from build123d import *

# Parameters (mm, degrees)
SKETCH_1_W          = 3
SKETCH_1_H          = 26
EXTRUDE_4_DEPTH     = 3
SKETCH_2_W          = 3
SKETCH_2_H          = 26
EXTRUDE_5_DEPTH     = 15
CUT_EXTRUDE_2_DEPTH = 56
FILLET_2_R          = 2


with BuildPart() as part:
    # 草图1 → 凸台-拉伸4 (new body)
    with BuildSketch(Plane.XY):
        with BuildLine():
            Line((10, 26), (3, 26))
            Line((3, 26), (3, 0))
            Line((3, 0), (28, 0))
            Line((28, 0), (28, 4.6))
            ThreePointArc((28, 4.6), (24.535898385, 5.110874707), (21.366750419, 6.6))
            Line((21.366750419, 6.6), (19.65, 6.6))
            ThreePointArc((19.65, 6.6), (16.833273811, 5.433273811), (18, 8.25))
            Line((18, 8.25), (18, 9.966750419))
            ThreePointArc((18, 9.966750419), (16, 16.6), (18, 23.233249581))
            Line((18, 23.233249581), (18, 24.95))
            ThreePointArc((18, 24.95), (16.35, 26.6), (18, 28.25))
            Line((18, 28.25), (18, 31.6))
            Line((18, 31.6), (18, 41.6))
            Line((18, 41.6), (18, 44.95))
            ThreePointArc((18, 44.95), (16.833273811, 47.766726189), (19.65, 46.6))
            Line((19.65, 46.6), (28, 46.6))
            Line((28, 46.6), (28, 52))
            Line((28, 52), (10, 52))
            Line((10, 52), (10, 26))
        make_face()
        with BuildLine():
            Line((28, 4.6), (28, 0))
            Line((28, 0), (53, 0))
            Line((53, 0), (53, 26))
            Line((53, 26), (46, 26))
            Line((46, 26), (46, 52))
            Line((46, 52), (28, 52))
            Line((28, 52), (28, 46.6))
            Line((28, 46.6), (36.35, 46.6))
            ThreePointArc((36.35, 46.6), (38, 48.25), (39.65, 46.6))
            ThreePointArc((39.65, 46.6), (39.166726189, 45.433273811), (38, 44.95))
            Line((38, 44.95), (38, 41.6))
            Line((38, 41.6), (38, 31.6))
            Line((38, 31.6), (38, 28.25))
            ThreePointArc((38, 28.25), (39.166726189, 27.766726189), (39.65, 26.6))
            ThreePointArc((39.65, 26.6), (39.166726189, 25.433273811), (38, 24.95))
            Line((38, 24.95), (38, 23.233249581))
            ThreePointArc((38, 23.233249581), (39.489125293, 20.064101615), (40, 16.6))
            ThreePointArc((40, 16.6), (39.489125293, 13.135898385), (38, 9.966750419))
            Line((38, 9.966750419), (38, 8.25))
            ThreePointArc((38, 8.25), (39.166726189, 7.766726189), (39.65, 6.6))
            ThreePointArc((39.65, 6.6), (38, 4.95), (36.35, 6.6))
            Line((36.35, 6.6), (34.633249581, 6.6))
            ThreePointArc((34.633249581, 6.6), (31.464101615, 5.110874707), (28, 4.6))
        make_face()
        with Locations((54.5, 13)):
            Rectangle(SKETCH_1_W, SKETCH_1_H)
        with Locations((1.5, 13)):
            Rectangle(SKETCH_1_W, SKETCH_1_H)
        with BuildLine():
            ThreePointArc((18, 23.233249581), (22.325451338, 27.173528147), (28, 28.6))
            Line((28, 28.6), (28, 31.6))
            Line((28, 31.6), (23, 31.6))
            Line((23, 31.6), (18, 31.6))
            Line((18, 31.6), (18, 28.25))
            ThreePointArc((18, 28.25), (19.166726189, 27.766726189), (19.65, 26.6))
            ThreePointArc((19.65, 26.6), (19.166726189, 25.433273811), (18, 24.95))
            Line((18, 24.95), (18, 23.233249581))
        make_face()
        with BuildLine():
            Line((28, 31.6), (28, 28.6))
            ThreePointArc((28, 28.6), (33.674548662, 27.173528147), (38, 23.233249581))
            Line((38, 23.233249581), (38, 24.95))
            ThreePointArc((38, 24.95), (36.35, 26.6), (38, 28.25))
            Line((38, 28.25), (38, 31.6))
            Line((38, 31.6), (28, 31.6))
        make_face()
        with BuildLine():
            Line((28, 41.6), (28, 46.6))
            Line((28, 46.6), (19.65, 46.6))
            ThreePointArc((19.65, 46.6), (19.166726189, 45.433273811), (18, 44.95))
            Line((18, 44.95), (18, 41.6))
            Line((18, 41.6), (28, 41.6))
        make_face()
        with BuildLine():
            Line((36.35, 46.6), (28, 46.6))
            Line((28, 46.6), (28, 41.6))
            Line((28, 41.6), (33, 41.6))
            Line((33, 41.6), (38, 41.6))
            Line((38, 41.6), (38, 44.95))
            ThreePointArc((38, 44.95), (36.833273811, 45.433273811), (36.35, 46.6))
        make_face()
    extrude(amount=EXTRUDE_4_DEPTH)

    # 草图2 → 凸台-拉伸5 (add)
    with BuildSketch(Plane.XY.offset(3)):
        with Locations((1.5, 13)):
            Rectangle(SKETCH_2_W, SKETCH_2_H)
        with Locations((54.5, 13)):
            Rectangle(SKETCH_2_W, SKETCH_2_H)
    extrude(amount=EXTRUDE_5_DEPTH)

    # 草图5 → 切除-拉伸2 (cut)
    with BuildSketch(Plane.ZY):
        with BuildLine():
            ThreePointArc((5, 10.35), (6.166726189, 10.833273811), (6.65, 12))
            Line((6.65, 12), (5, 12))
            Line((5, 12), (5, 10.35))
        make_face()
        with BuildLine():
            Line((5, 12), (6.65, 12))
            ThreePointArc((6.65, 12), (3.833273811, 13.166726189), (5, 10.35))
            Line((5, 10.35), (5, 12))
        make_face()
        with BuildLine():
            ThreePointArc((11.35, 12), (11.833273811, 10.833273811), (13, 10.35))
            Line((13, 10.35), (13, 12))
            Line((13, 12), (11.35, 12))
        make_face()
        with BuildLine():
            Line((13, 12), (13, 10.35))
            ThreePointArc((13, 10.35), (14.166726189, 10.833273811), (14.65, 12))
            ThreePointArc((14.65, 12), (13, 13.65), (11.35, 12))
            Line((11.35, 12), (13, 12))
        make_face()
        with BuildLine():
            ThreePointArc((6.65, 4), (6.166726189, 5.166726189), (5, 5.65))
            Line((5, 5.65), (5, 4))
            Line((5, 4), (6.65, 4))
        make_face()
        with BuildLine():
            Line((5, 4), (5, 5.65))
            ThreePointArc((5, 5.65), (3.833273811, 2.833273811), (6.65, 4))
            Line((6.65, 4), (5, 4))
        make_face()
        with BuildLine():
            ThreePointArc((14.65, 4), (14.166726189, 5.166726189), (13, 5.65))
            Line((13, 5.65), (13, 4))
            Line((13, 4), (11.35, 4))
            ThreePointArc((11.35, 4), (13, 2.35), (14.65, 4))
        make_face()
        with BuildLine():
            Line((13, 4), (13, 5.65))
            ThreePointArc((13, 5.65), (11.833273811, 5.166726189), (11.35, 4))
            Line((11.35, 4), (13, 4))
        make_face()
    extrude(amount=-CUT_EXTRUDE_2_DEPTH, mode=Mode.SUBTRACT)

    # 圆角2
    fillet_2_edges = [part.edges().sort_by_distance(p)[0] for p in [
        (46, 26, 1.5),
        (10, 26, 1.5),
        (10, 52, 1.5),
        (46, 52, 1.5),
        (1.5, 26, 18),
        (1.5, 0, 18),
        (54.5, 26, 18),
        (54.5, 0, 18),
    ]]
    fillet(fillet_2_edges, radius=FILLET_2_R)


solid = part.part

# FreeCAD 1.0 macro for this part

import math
import FreeCAD as App
import Part
import Sketcher


def edges_at(feature, points):
    """Names of the edges that pass closest to the given points."""
    edges = feature.Shape.Edges
    near = lambda p: min(range(len(edges)), key=lambda i: edges[i].distToShape(Part.Vertex(*p))[0])
    return sorted({f"Edge{near(p) + 1}" for p in points})


def add_polygon(sketch, points):
    """Adds a closed chain of lines whose ends are joined by coincident constraints."""
    first, n = sketch.GeometryCount, len(points)
    for a, b in zip(points, points[1:] + points[:1]):
        sketch.addGeometry(Part.LineSegment(App.Vector(*a, 0), App.Vector(*b, 0)), False)
    for i in range(n):
        sketch.addConstraint(Sketcher.Constraint("Coincident", first + i, 2, first + (i + 1) % n, 1))

doc = App.newDocument("Part")
body = doc.addObject("PartDesign::Body", "Body")

sketch1 = body.newObject("Sketcher::SketchObject", "Sketch")
sketch1.AttachmentSupport = (doc.getObject("XY_Plane"), [""])
sketch1.MapMode = "FlatFace"
add_polygon(sketch1, [(10, 26), (0, 26), (0, 0), (56, 0), (56, 26), (46, 26), (46, 52), (10, 52)])
sketch1.addGeometry(Part.ArcOfCircle(Part.Circle(App.Vector(28, 16.6, 0), App.Vector(0, 0, 1), 12), math.radians(-124), math.radians(-90)), False)
sketch1.addGeometry(Part.LineSegment(App.Vector(21.4, 6.6, 0), App.Vector(19.6, 6.6, 0)), False)
sketch1.addGeometry(Part.ArcOfCircle(Part.Circle(App.Vector(18, 6.6, 0), App.Vector(0, 0, 1), 1.6), math.radians(90), math.radians(360)), False)
sketch1.addGeometry(Part.LineSegment(App.Vector(18, 8.2, 0), App.Vector(18, 10, 0)), False)
sketch1.addGeometry(Part.ArcOfCircle(Part.Circle(App.Vector(28, 16.6, 0), App.Vector(0, 0, 1), 12), math.radians(146), math.radians(214)), False)
sketch1.addGeometry(Part.ArcOfCircle(Part.Circle(App.Vector(28, 16.6, 0), App.Vector(0, 0, 1), 12), math.radians(90), math.radians(146)), False)
sketch1.addGeometry(Part.ArcOfCircle(Part.Circle(App.Vector(28, 16.6, 0), App.Vector(0, 0, 1), 12), math.radians(34), math.radians(90)), False)
sketch1.addGeometry(Part.ArcOfCircle(Part.Circle(App.Vector(28, 16.6, 0), App.Vector(0, 0, 1), 12), math.radians(0), math.radians(34)), False)
sketch1.addGeometry(Part.ArcOfCircle(Part.Circle(App.Vector(28, 16.6, 0), App.Vector(0, 0, 1), 12), math.radians(-34), math.radians(0)), False)
sketch1.addGeometry(Part.LineSegment(App.Vector(38, 10, 0), App.Vector(38, 8.2, 0)), False)
sketch1.addGeometry(Part.ArcOfCircle(Part.Circle(App.Vector(38, 6.6, 0), App.Vector(0, 0, 1), 1.6), math.radians(0), math.radians(90)), False)
sketch1.addGeometry(Part.ArcOfCircle(Part.Circle(App.Vector(38, 6.6, 0), App.Vector(0, 0, 1), 1.6), math.radians(180), math.radians(360)), False)
sketch1.addGeometry(Part.LineSegment(App.Vector(36.4, 6.6, 0), App.Vector(34.6, 6.6, 0)), False)
sketch1.addGeometry(Part.ArcOfCircle(Part.Circle(App.Vector(28, 16.6, 0), App.Vector(0, 0, 1), 12), math.radians(-90), math.radians(-56)), False)
add_polygon(sketch1, [(18, 31.6), (18, 41.6), (38, 41.6), (38, 31.6)])
sketch1.addGeometry(Part.ArcOfCircle(Part.Circle(App.Vector(38, 46.6, 0), App.Vector(0, 0, 1), 1.6), math.radians(0), math.radians(180)), False)
sketch1.addGeometry(Part.ArcOfCircle(Part.Circle(App.Vector(38, 46.6, 0), App.Vector(0, 0, 1), 1.6), math.radians(-90), math.radians(0)), False)
sketch1.addGeometry(Part.ArcOfCircle(Part.Circle(App.Vector(38, 46.6, 0), App.Vector(0, 0, 1), 1.6), math.radians(180), math.radians(270)), False)
sketch1.addGeometry(Part.ArcOfCircle(Part.Circle(App.Vector(18, 46.6, 0), App.Vector(0, 0, 1), 1.6), math.radians(0), math.radians(270)), False)
sketch1.addGeometry(Part.ArcOfCircle(Part.Circle(App.Vector(18, 46.6, 0), App.Vector(0, 0, 1), 1.6), math.radians(-90), math.radians(0)), False)
sketch1.addGeometry(Part.ArcOfCircle(Part.Circle(App.Vector(38, 26.6, 0), App.Vector(0, 0, 1), 1.6), math.radians(0), math.radians(90)), False)
sketch1.addGeometry(Part.ArcOfCircle(Part.Circle(App.Vector(38, 26.6, 0), App.Vector(0, 0, 1), 1.6), math.radians(-90), math.radians(0)), False)
sketch1.addGeometry(Part.ArcOfCircle(Part.Circle(App.Vector(38, 26.6, 0), App.Vector(0, 0, 1), 1.6), math.radians(90), math.radians(270)), False)
sketch1.addGeometry(Part.ArcOfCircle(Part.Circle(App.Vector(18, 26.6, 0), App.Vector(0, 0, 1), 1.6), math.radians(90), math.radians(270)), False)
sketch1.addGeometry(Part.ArcOfCircle(Part.Circle(App.Vector(18, 26.6, 0), App.Vector(0, 0, 1), 1.6), math.radians(0), math.radians(90)), False)
sketch1.addGeometry(Part.ArcOfCircle(Part.Circle(App.Vector(18, 26.6, 0), App.Vector(0, 0, 1), 1.6), math.radians(-90), math.radians(0)), False)
sketch1.addConstraint([
    Sketcher.Constraint("Coincident", 8, 1, 9, 1),
    Sketcher.Constraint("Coincident", 9, 2, 10, 2),
    Sketcher.Constraint("Coincident", 10, 1, 11, 1),
    Sketcher.Constraint("Coincident", 11, 2, 12, 2),
    Sketcher.Constraint("Tangent", 12, 1, 13, 2),
    Sketcher.Constraint("Tangent", 13, 1, 14, 2),
    Sketcher.Constraint("Tangent", 14, 1, 15, 2),
    Sketcher.Constraint("Tangent", 15, 1, 16, 2),
    Sketcher.Constraint("Coincident", 16, 1, 17, 1),
    Sketcher.Constraint("Coincident", 17, 2, 18, 2),
    Sketcher.Constraint("Tangent", 18, 1, 19, 2),
    Sketcher.Constraint("Coincident", 19, 1, 20, 1),
    Sketcher.Constraint("Coincident", 20, 2, 21, 2),
    Sketcher.Constraint("Tangent", 21, 1, 8, 2),
    Sketcher.Constraint("Tangent", 26, 1, 27, 2),
    Sketcher.Constraint("Tangent", 27, 1, 28, 2),
    Sketcher.Constraint("Tangent", 28, 1, 26, 2),
    Sketcher.Constraint("Tangent", 29, 1, 30, 2),
    Sketcher.Constraint("Coincident", 30, 1, 29, 2),
    Sketcher.Constraint("Tangent", 31, 1, 32, 2),
    Sketcher.Constraint("Tangent", 32, 1, 33, 2),
    Sketcher.Constraint("Tangent", 33, 1, 31, 2),
    Sketcher.Constraint("Tangent", 34, 1, 35, 2),
    Sketcher.Constraint("Tangent", 35, 1, 36, 2),
    Sketcher.Constraint("Tangent", 36, 1, 34, 2),
    Sketcher.Constraint("Horizontal", 0),
    Sketcher.Constraint("Vertical", 1),
    Sketcher.Constraint("Horizontal", 2),
    Sketcher.Constraint("Vertical", 3),
    Sketcher.Constraint("Horizontal", 4),
    Sketcher.Constraint("Vertical", 5),
    Sketcher.Constraint("Horizontal", 6),
    Sketcher.Constraint("Vertical", 7),
    Sketcher.Constraint("Horizontal", 9),
    Sketcher.Constraint("Vertical", 11),
    Sketcher.Constraint("Vertical", 17),
    Sketcher.Constraint("Horizontal", 20),
    Sketcher.Constraint("Vertical", 22),
    Sketcher.Constraint("Horizontal", 23),
    Sketcher.Constraint("Vertical", 24),
    Sketcher.Constraint("Horizontal", 25),
    Sketcher.Constraint("Coincident", 1, 2, -1, 1),
    Sketcher.Constraint("Coincident", 12, 3, 8, 3),
    Sketcher.Constraint("Coincident", 14, 3, 8, 3),
    Sketcher.Constraint("Coincident", 16, 3, 8, 3),
    Sketcher.Constraint("Equal", 8, 12),
    Sketcher.Constraint("Equal", 10, 18),
    Sketcher.Constraint("Equal", 18, 19),
    Sketcher.Constraint("Equal", 16, 21),
    Sketcher.Constraint("Equal", 19, 26),
    Sketcher.Constraint("Equal", 28, 29),
    Sketcher.Constraint("Equal", 30, 31),
    Sketcher.Constraint("Equal", 33, 34),
    Sketcher.Constraint("Horizontal", 10, 3, 18, 3),
    Sketcher.Constraint("Horizontal", 28, 3, 29, 3),
    Sketcher.Constraint("Horizontal", 33, 3, 34, 3),
    Sketcher.Constraint("Horizontal", 0, 2, 3, 2),
    Sketcher.Constraint("Horizontal", 19, 3, 8, 1),
    Sketcher.Constraint("Horizontal", 12, 1, 14, 1),
    Sketcher.Constraint("Horizontal", 21, 3, 15, 1),
    Sketcher.Constraint("Horizontal", 11, 2, 16, 1),
    Sketcher.Constraint("Horizontal", 9, 2, 18, 1),
    Sketcher.Constraint("Horizontal", 18, 1, 19, 1),
    Sketcher.Constraint("Horizontal", 30, 3, 26, 1),
    Sketcher.Constraint("Horizontal", 26, 1, 28, 1),
    Sketcher.Constraint("Horizontal", 28, 1, 29, 1),
    Sketcher.Constraint("Horizontal", 36, 3, 31, 1),
    Sketcher.Constraint("Horizontal", 31, 1, 35, 1),
    Sketcher.Constraint("Vertical", 19, 3, 26, 3),
    Sketcher.Constraint("Vertical", 10, 3, 29, 3),
    Sketcher.Constraint("Vertical", 28, 3, 31, 3),
    Sketcher.Constraint("Vertical", 30, 3, 34, 3),
    Sketcher.Constraint("Vertical", 36, 3, 10, 1),
    Sketcher.Constraint("Vertical", 11, 2, 12, 1),
    Sketcher.Constraint("Vertical", 21, 3, 13, 1),
    Sketcher.Constraint("Vertical", 33, 3, 14, 1),
    Sketcher.Constraint("Vertical", 13, 1, 21, 1),
    Sketcher.Constraint("Vertical", 12, 1, 22, 2),
    Sketcher.Constraint("Vertical", 17, 2, 23, 2),
    Sketcher.Constraint("Vertical", 24, 2, 27, 1),
    Sketcher.Constraint("Vertical", 25, 2, 30, 1),
    Sketcher.Constraint("Vertical", 27, 1, 32, 1),
    Sketcher.Constraint("Vertical", 32, 1, 33, 1),
    Sketcher.Constraint("Vertical", 30, 1, 34, 1),
    Sketcher.Constraint("Vertical", 34, 1, 36, 1),
    Sketcher.Constraint("Equal", 0, 4),
    Sketcher.Constraint("Equal", 3, 5),
    Sketcher.Constraint("Equal", 20, 11),
    Sketcher.Constraint("Equal", 4, 22),
    Sketcher.Constraint("Radius", 8, 12.0),
    Sketcher.Constraint("DistanceX", 0, 2, 0, 1, 10.0),
    Sketcher.Constraint("DistanceX", 2, 1, 2, 2, 56.0),
    Sketcher.Constraint("DistanceX", 23, 1, 23, 2, 20.0),
    Sketcher.Constraint("DistanceY", 1, 2, 1, 1, 26.0),
    Sketcher.Constraint("Radius", 10, 1.65),
    Sketcher.Constraint("DistanceX", -1, 1, 8, 3, 28.0),
    Sketcher.Constraint("DistanceY", 8, 3, 26, 3, 30.0),
    Sketcher.Constraint("DistanceY", 8, 3, 31, 3, 10.0),
    Sketcher.Constraint("DistanceY", 22, 2, 29, 3, 5.0),
    Sketcher.Constraint("DistanceY", -1, 1, 8, 3, 16.6),
])
pad1 = body.newObject("PartDesign::Pad", "Pad")
pad1.Profile = sketch1
pad1.Length = 3

sketch2 = body.newObject("Sketcher::SketchObject", "Sketch001")
sketch2.AttachmentSupport = (doc.getObject("XY_Plane"), [""])
sketch2.MapMode = "FlatFace"
sketch2.AttachmentOffset = App.Placement(App.Vector(0, 0, 3), App.Rotation())
add_polygon(sketch2, [(0, 26), (0, 0), (3, 0), (3, 26)])
add_polygon(sketch2, [(53, 26), (53, 0), (56, 0), (56, 26)])
sketch2.addConstraint([
    Sketcher.Constraint("Vertical", 0),
    Sketcher.Constraint("Horizontal", 1),
    Sketcher.Constraint("Vertical", 2),
    Sketcher.Constraint("Horizontal", 3),
    Sketcher.Constraint("Vertical", 4),
    Sketcher.Constraint("Horizontal", 5),
    Sketcher.Constraint("Vertical", 6),
    Sketcher.Constraint("Horizontal", 7),
    Sketcher.Constraint("Coincident", 0, 2, -1, 1),
    Sketcher.Constraint("PointOnObject", 4, 2, -1),
    Sketcher.Constraint("Horizontal", 3, 2, 6, 2),
    Sketcher.Constraint("Equal", 3, 5),
    Sketcher.Constraint("DistanceX", 1, 1, 1, 2, 3.0),
    Sketcher.Constraint("DistanceY", 0, 2, 0, 1, 26.0),
    Sketcher.Constraint("DistanceX", -1, 1, 4, 2, 53.0),
])
pad2 = body.newObject("PartDesign::Pad", "Pad001")
pad2.Profile = sketch2
pad2.Length = 15

sketch3 = body.newObject("Sketcher::SketchObject", "Sketch002")
sketch3.AttachmentSupport = (doc.getObject("YZ_Plane"), [""])
sketch3.MapMode = "FlatFace"
sketch3.addGeometry([
    Part.ArcOfCircle(Part.Circle(App.Vector(12, 5, 0), App.Vector(0, 0, 1), 1.6), math.radians(90), math.radians(180)),
    Part.ArcOfCircle(Part.Circle(App.Vector(12, 5, 0), App.Vector(0, 0, 1), 1.6), math.radians(180), math.radians(450)),
    Part.ArcOfCircle(Part.Circle(App.Vector(12, 13, 0), App.Vector(0, 0, 1), 1.6), math.radians(180), math.radians(270)),
    Part.ArcOfCircle(Part.Circle(App.Vector(12, 13, 0), App.Vector(0, 0, 1), 1.6), math.radians(90), math.radians(180)),
    Part.ArcOfCircle(Part.Circle(App.Vector(12, 13, 0), App.Vector(0, 0, 1), 1.6), math.radians(-90), math.radians(90)),
    Part.ArcOfCircle(Part.Circle(App.Vector(4, 5, 0), App.Vector(0, 0, 1), 1.6), math.radians(0), math.radians(90)),
    Part.ArcOfCircle(Part.Circle(App.Vector(4, 5, 0), App.Vector(0, 0, 1), 1.6), math.radians(90), math.radians(360)),
    Part.ArcOfCircle(Part.Circle(App.Vector(4, 13, 0), App.Vector(0, 0, 1), 1.6), math.radians(0), math.radians(90)),
    Part.ArcOfCircle(Part.Circle(App.Vector(4, 13, 0), App.Vector(0, 0, 1), 1.6), math.radians(-90), math.radians(0)),
    Part.ArcOfCircle(Part.Circle(App.Vector(4, 13, 0), App.Vector(0, 0, 1), 1.6), math.radians(90), math.radians(270)),
], False)
sketch3.addConstraint([
    Sketcher.Constraint("Tangent", 0, 1, 1, 2),
    Sketcher.Constraint("Coincident", 1, 1, 0, 2),
    Sketcher.Constraint("Tangent", 2, 1, 3, 2),
    Sketcher.Constraint("Tangent", 3, 1, 4, 2),
    Sketcher.Constraint("Tangent", 4, 1, 2, 2),
    Sketcher.Constraint("Tangent", 5, 1, 6, 2),
    Sketcher.Constraint("Coincident", 6, 1, 5, 2),
    Sketcher.Constraint("Tangent", 7, 1, 8, 2),
    Sketcher.Constraint("Tangent", 8, 1, 9, 2),
    Sketcher.Constraint("Tangent", 9, 1, 7, 2),
    Sketcher.Constraint("Equal", 1, 2),
    Sketcher.Constraint("Equal", 4, 5),
    Sketcher.Constraint("Equal", 6, 7),
    Sketcher.Constraint("Horizontal", 1, 3, 5, 3),
    Sketcher.Constraint("Horizontal", 4, 3, 7, 3),
    Sketcher.Constraint("Horizontal", 6, 3, 1, 1),
    Sketcher.Constraint("Horizontal", 9, 3, 2, 1),
    Sketcher.Constraint("Horizontal", 1, 1, 5, 1),
    Sketcher.Constraint("Horizontal", 2, 1, 7, 1),
    Sketcher.Constraint("Vertical", 1, 3, 2, 3),
    Sketcher.Constraint("Vertical", 6, 3, 7, 3),
    Sketcher.Constraint("Vertical", 4, 3, 0, 1),
    Sketcher.Constraint("Vertical", 0, 1, 3, 1),
    Sketcher.Constraint("Vertical", 3, 1, 4, 1),
    Sketcher.Constraint("Vertical", 9, 3, 6, 1),
    Sketcher.Constraint("Vertical", 6, 1, 8, 1),
    Sketcher.Constraint("Vertical", 8, 1, 9, 1),
    Sketcher.Constraint("Radius", 0, 1.65),
    Sketcher.Constraint("DistanceX", -1, 1, 0, 3, 12.0),
    Sketcher.Constraint("DistanceY", -1, 1, 0, 3, 5.0),
    Sketcher.Constraint("DistanceY", -1, 1, 2, 3, 13.0),
    Sketcher.Constraint("DistanceX", -1, 1, 5, 3, 4.0),
])
pocket1 = body.newObject("PartDesign::Pocket", "Pocket")
pocket1.Profile = sketch3
pocket1.Length = 56
pocket1.Reversed = True
doc.recompute()

fillet = body.newObject("PartDesign::Fillet", "Fillet")
fillet.Base = (pocket1, edges_at(pocket1, [
    (46, 26, 1.5),
    (10, 26, 1.5),
    (10, 52, 1.5),
    (46, 52, 1.5),
    (1.5, 26, 18),
    (1.5, 0, 18),
    (54.5, 26, 18),
    (54.5, 0, 18),
]))
fillet.Radius = 2

doc.recompute()
